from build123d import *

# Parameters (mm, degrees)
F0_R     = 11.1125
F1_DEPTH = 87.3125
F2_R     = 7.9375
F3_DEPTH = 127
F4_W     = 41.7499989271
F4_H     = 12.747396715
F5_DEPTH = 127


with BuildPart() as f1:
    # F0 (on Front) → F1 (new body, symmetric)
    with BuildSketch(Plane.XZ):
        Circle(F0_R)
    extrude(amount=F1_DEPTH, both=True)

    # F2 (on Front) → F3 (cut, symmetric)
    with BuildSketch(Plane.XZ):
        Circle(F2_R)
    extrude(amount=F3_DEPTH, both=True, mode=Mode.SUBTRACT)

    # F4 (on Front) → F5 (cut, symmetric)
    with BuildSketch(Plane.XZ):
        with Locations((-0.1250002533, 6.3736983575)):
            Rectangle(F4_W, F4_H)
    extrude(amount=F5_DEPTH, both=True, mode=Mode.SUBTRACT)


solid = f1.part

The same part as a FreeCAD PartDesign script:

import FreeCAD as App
import Part
import Sketcher
Q = App.Units.Quantity

doc = App.newDocument("Part")
body = doc.addObject("PartDesign::Body", "Body")

# Sketch on XZ plane
sketch1 = body.newObject("Sketcher::SketchObject", "Sketch")
sketch1.AttachmentSupport = (doc.getObject("XZ_Plane"), [""])
sketch1.MapMode = "FlatFace"
sketch1.addGeometry(Part.Circle(App.Vector(0, 0, 0), App.Vector(0, 0, 1), 11), False)
sketch1.addConstraint(Sketcher.Constraint("Coincident", 0, 3, -1, 1))
sketch1.addConstraint(Sketcher.Constraint("Diameter", 0, Q("0.875 in")))
pad1 = body.newObject("PartDesign::Pad", "Pad")
pad1.Profile = sketch1
pad1.Length = Q("6.875 in")
pad1.Midplane = True

# Sketch on XZ plane
sketch2 = body.newObject("Sketcher::SketchObject", "Sketch001")
sketch2.AttachmentSupport = (doc.getObject("XZ_Plane"), [""])
sketch2.MapMode = "FlatFace"
sketch2.addGeometry(Part.Circle(App.Vector(0, 0, 0), App.Vector(0, 0, 1), 8), False)
sketch2.addConstraint(Sketcher.Constraint("Coincident", 0, 3, -1, 1))
sketch2.addConstraint(Sketcher.Constraint("Diameter", 0, Q("0.625 in")))
pocket1 = body.newObject("PartDesign::Pocket", "Pocket")
pocket1.Profile = sketch2
pocket1.Length = Q("10 in")
pocket1.Midplane = True

# Sketch on XZ plane
sketch3 = body.newObject("Sketcher::SketchObject", "Sketch002")
sketch3.AttachmentSupport = (doc.getObject("XZ_Plane"), [""])
sketch3.MapMode = "FlatFace"
sketch3.addGeometry(Part.LineSegment(App.Vector(-21, 13, 0), App.Vector(-21, 0, 0)), False)
sketch3.addGeometry(Part.LineSegment(App.Vector(-21, 0, 0), App.Vector(21, 0, 0)), False)
sketch3.addGeometry(Part.LineSegment(App.Vector(21, 0, 0), App.Vector(21, 13, 0)), False)
sketch3.addGeometry(Part.LineSegment(App.Vector(21, 13, 0), App.Vector(-21, 13, 0)), False)
sketch3.addConstraint(Sketcher.Constraint("Coincident", 0, 2, 1, 1))
sketch3.addConstraint(Sketcher.Constraint("Coincident", 1, 2, 2, 1))
sketch3.addConstraint(Sketcher.Constraint("Coincident", 2, 2, 3, 1))
sketch3.addConstraint(Sketcher.Constraint("Coincident", 3, 2, 0, 1))
sketch3.addConstraint(Sketcher.Constraint("Vertical", 0))
sketch3.addConstraint(Sketcher.Constraint("Horizontal", 1))
sketch3.addConstraint(Sketcher.Constraint("Vertical", 2))
sketch3.addConstraint(Sketcher.Constraint("Horizontal", 3))
sketch3.addConstraint(Sketcher.Constraint("PointOnObject", 0, 2, -1))
sketch3.addConstraint(Sketcher.Constraint("DistanceX", 1, 1, 1, 2, 41.749999))
sketch3.addConstraint(Sketcher.Constraint("DistanceX", 0, 2, -1, 1, 21.0))
sketch3.addConstraint(Sketcher.Constraint("DistanceY", 0, 2, 0, 1, 12.747397))
pocket2 = body.newObject("PartDesign::Pocket", "Pocket001")
pocket2.Profile = sketch3
pocket2.Length = Q("10 in")
pocket2.Midplane = True

doc.recompute()
